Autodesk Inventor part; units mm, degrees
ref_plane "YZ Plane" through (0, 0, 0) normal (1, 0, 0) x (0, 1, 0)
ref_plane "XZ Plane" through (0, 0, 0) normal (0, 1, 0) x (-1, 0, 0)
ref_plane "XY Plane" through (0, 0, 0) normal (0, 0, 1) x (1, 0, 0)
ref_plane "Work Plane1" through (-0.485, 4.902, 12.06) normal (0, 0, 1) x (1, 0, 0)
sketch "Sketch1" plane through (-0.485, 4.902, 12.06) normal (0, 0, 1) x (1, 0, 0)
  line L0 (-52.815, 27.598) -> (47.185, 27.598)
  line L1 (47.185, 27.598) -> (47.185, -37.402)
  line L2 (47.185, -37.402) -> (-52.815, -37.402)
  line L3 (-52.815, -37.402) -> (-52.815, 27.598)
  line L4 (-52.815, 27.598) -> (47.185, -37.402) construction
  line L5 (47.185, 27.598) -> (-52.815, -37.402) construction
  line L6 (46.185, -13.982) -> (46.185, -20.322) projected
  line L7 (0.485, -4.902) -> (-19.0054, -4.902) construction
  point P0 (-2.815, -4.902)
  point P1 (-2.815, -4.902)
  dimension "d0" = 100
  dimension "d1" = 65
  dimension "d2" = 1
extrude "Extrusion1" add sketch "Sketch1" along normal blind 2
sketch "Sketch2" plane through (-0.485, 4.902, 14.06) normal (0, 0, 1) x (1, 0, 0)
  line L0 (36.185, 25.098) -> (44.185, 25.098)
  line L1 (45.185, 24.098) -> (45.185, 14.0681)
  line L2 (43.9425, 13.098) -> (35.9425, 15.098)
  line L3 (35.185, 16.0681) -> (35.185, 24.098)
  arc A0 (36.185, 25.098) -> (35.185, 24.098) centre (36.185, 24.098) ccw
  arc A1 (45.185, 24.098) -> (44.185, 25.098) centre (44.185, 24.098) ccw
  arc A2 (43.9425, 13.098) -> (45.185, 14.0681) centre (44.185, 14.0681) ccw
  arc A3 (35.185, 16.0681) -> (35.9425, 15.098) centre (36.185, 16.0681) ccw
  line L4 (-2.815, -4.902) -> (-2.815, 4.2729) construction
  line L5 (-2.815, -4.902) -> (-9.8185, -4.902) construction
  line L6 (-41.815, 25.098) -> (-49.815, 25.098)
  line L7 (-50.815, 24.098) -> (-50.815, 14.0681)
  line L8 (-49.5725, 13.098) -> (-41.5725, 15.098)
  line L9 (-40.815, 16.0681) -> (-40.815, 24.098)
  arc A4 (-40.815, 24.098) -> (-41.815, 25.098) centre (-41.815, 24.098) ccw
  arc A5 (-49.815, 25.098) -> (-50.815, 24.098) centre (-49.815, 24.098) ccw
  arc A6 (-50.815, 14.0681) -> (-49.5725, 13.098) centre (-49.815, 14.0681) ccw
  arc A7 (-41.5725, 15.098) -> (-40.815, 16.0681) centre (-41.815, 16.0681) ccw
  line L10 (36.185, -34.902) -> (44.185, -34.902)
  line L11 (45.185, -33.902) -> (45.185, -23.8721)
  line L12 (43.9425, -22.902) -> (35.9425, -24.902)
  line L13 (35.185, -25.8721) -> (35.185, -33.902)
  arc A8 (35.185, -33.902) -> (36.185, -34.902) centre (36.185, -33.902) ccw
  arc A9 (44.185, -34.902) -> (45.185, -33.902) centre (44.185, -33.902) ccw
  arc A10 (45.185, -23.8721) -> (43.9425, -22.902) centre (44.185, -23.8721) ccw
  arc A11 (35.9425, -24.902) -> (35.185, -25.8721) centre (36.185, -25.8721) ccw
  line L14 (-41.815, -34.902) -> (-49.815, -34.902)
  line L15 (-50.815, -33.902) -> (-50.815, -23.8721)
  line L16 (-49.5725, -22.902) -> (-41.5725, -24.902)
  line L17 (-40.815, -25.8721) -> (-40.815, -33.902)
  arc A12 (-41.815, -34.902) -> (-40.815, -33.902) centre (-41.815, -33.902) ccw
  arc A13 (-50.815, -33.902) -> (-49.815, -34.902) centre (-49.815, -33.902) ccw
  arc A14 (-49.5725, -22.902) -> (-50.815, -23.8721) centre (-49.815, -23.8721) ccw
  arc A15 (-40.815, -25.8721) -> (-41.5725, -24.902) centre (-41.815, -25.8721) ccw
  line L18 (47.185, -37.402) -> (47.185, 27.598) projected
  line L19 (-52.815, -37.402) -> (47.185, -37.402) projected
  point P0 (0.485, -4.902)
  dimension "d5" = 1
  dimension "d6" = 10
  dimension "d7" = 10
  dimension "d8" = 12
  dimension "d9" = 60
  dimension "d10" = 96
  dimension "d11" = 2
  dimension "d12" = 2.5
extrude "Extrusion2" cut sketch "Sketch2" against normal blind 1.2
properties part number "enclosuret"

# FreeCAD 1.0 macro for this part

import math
import FreeCAD as App
import Part
import Sketcher
from FreeCAD import Vector


def add_polygon(sketch, points):
    """Adds a closed chain of lines whose ends are joined by coincident constraints."""
    first, n = sketch.GeometryCount, len(points)
    for a, b in zip(points, points[1:] + points[:1]):
        sketch.addGeometry(Part.LineSegment(App.Vector(*a, 0), App.Vector(*b, 0)), False)
    for i in range(n):
        sketch.addConstraint(Sketcher.Constraint("Coincident", first + i, 2, first + (i + 1) % n, 1))

doc = App.newDocument("Part")
body = doc.addObject("PartDesign::Body", "Body")

# Sketch on XY plane
sketch1 = body.newObject("Sketcher::SketchObject", "Sketch")
sketch1.AttachmentSupport = (doc.getObject("XY_Plane"), [""])
sketch1.MapMode = "FlatFace"
sketch1.AttachmentOffset = App.Placement(Vector(0, 0, 12.06), App.Rotation())
add_polygon(sketch1, [(47, 32), (-53, 32), (-53, -32), (47, -32)])  # lines 0-3
sketch1.addConstraint(Sketcher.Constraint("Horizontal", 0))
sketch1.addConstraint(Sketcher.Constraint("Vertical", 1))
sketch1.addConstraint(Sketcher.Constraint("Horizontal", 2))
sketch1.addConstraint(Sketcher.Constraint("Vertical", 3))
sketch1.addConstraint(Sketcher.Constraint("DistanceX", 0, 2, 0, 1, 100.0))
sketch1.addConstraint(Sketcher.Constraint("DistanceY", 1, 2, 1, 1, 65.0))
sketch1.addConstraint(Sketcher.Constraint("DistanceX", 0, 2, -1, 1, 53.3))
sketch1.addConstraint(Sketcher.Constraint("DistanceY", -1, 1, 0, 2, 32.5))
pad1 = body.newObject("PartDesign::Pad", "Pad")
pad1.Profile = sketch1
pad1.Length = 2

# Sketch on XY plane
sketch2 = body.newObject("Sketcher::SketchObject", "Sketch001")
sketch2.AttachmentSupport = (doc.getObject("XY_Plane"), [""])
sketch2.MapMode = "FlatFace"
sketch2.AttachmentOffset = App.Placement(Vector(0, 0, 14.06), App.Rotation())
sketch2.addGeometry(Part.LineSegment(Vector(43.7, 30, 0), Vector(35.7, 30, 0)), False)
sketch2.addGeometry(Part.ArcOfCircle(Part.Circle(Vector(35.7, 29, 0), Vector(0, 0, 1), 1), math.radians(90), math.radians(180)), False)
sketch2.addGeometry(Part.LineSegment(Vector(34.7, 29, 0), Vector(34.7, 21, 0)), False)
sketch2.addGeometry(Part.ArcOfCircle(Part.Circle(Vector(35.7, 21, 0), Vector(0, 0, 1), 1), math.radians(180), math.radians(256)), False)
sketch2.addGeometry(Part.LineSegment(Vector(35.5, 20, 0), Vector(43.5, 18, 0)), False)
sketch2.addGeometry(Part.ArcOfCircle(Part.Circle(Vector(43.7, 19, 0), Vector(0, 0, 1), 1), math.radians(-104), math.radians(0)), False)
sketch2.addGeometry(Part.LineSegment(Vector(44.7, 19, 0), Vector(44.7, 29, 0)), False)
sketch2.addGeometry(Part.ArcOfCircle(Part.Circle(Vector(43.7, 29, 0), Vector(0, 0, 1), 1), math.radians(0), math.radians(90)), False)
sketch2.addGeometry(Part.ArcOfCircle(Part.Circle(Vector(-42.3, 29, 0), Vector(0, 0, 1), 1), math.radians(0), math.radians(90)), False)
sketch2.addGeometry(Part.LineSegment(Vector(-42.3, 30, 0), Vector(-50.3, 30, 0)), False)
sketch2.addGeometry(Part.ArcOfCircle(Part.Circle(Vector(-50.3, 29, 0), Vector(0, 0, 1), 1), math.radians(90), math.radians(180)), False)
sketch2.addGeometry(Part.LineSegment(Vector(-51.3, 29, 0), Vector(-51.3, 19, 0)), False)
sketch2.addGeometry(Part.ArcOfCircle(Part.Circle(Vector(-50.3, 19, 0), Vector(0, 0, 1), 1), math.radians(180), math.radians(284)), False)
sketch2.addGeometry(Part.LineSegment(Vector(-50.1, 18, 0), Vector(-42.1, 20, 0)), False)
sketch2.addGeometry(Part.ArcOfCircle(Part.Circle(Vector(-42.3, 21, 0), Vector(0, 0, 1), 1), math.radians(-76), math.radians(0)), False)
sketch2.addGeometry(Part.LineSegment(Vector(-41.3, 21, 0), Vector(-41.3, 29, 0)), False)
sketch2.addGeometry(Part.ArcOfCircle(Part.Circle(Vector(35.7, -29, 0), Vector(0, 0, 1), 1), math.radians(180), math.radians(270)), False)
sketch2.addGeometry(Part.LineSegment(Vector(35.7, -30, 0), Vector(43.7, -30, 0)), False)
sketch2.addGeometry(Part.ArcOfCircle(Part.Circle(Vector(43.7, -29, 0), Vector(0, 0, 1), 1), math.radians(-90), math.radians(0)), False)
sketch2.addGeometry(Part.LineSegment(Vector(44.7, -29, 0), Vector(44.7, -19, 0)), False)
sketch2.addGeometry(Part.ArcOfCircle(Part.Circle(Vector(43.7, -19, 0), Vector(0, 0, 1), 1), math.radians(0), math.radians(104)), False)
sketch2.addGeometry(Part.LineSegment(Vector(43.5, -18, 0), Vector(35.5, -20, 0)), False)
sketch2.addGeometry(Part.ArcOfCircle(Part.Circle(Vector(35.7, -21, 0), Vector(0, 0, 1), 1), math.radians(104), math.radians(180)), False)
sketch2.addGeometry(Part.LineSegment(Vector(34.7, -21, 0), Vector(34.7, -29, 0)), False)
sketch2.addGeometry(Part.LineSegment(Vector(-50.3, -30, 0), Vector(-42.3, -30, 0)), False)
sketch2.addGeometry(Part.ArcOfCircle(Part.Circle(Vector(-42.3, -29, 0), Vector(0, 0, 1), 1), math.radians(-90), math.radians(0)), False)
sketch2.addGeometry(Part.LineSegment(Vector(-41.3, -29, 0), Vector(-41.3, -21, 0)), False)
sketch2.addGeometry(Part.ArcOfCircle(Part.Circle(Vector(-42.3, -21, 0), Vector(0, 0, 1), 1), math.radians(0), math.radians(76)), False)
sketch2.addGeometry(Part.LineSegment(Vector(-42.1, -20, 0), Vector(-50.1, -18, 0)), False)
sketch2.addGeometry(Part.ArcOfCircle(Part.Circle(Vector(-50.3, -19, 0), Vector(0, 0, 1), 1), math.radians(76), math.radians(180)), False)
sketch2.addGeometry(Part.LineSegment(Vector(-51.3, -19, 0), Vector(-51.3, -29, 0)), False)
sketch2.addGeometry(Part.ArcOfCircle(Part.Circle(Vector(-50.3, -29, 0), Vector(0, 0, 1), 1), math.radians(180), math.radians(270)), False)
sketch2.addConstraint(Sketcher.Constraint("Tangent", 0, 2, 1, 1))
sketch2.addConstraint(Sketcher.Constraint("Tangent", 1, 2, 2, 1))
sketch2.addConstraint(Sketcher.Constraint("Tangent", 2, 2, 3, 1))
sketch2.addConstraint(Sketcher.Constraint("Tangent", 3, 2, 4, 1))
sketch2.addConstraint(Sketcher.Constraint("Tangent", 4, 2, 5, 1))
sketch2.addConstraint(Sketcher.Constraint("Tangent", 5, 2, 6, 1))
sketch2.addConstraint(Sketcher.Constraint("Tangent", 6, 2, 7, 1))
sketch2.addConstraint(Sketcher.Constraint("Tangent", 7, 2, 0, 1))
sketch2.addConstraint(Sketcher.Constraint("Tangent", 8, 2, 9, 1))
sketch2.addConstraint(Sketcher.Constraint("Tangent", 9, 2, 10, 1))
sketch2.addConstraint(Sketcher.Constraint("Tangent", 10, 2, 11, 1))
sketch2.addConstraint(Sketcher.Constraint("Tangent", 11, 2, 12, 1))
sketch2.addConstraint(Sketcher.Constraint("Tangent", 12, 2, 13, 1))
sketch2.addConstraint(Sketcher.Constraint("Tangent", 13, 2, 14, 1))
sketch2.addConstraint(Sketcher.Constraint("Tangent", 14, 2, 15, 1))
sketch2.addConstraint(Sketcher.Constraint("Tangent", 15, 2, 8, 1))
sketch2.addConstraint(Sketcher.Constraint("Tangent", 16, 2, 17, 1))
sketch2.addConstraint(Sketcher.Constraint("Tangent", 17, 2, 18, 1))
sketch2.addConstraint(Sketcher.Constraint("Tangent", 18, 2, 19, 1))
sketch2.addConstraint(Sketcher.Constraint("Tangent", 19, 2, 20, 1))
sketch2.addConstraint(Sketcher.Constraint("Tangent", 20, 2, 21, 1))
sketch2.addConstraint(Sketcher.Constraint("Tangent", 21, 2, 22, 1))
sketch2.addConstraint(Sketcher.Constraint("Tangent", 22, 2, 23, 1))
sketch2.addConstraint(Sketcher.Constraint("Tangent", 23, 2, 16, 1))
sketch2.addConstraint(Sketcher.Constraint("Tangent", 24, 2, 25, 1))
sketch2.addConstraint(Sketcher.Constraint("Tangent", 25, 2, 26, 1))
sketch2.addConstraint(Sketcher.Constraint("Tangent", 26, 2, 27, 1))
sketch2.addConstraint(Sketcher.Constraint("Tangent", 27, 2, 28, 1))
sketch2.addConstraint(Sketcher.Constraint("Tangent", 28, 2, 29, 1))
sketch2.addConstraint(Sketcher.Constraint("Tangent", 29, 2, 30, 1))
sketch2.addConstraint(Sketcher.Constraint("Tangent", 30, 2, 31, 1))
sketch2.addConstraint(Sketcher.Constraint("Tangent", 31, 2, 24, 1))
sketch2.addConstraint(Sketcher.Constraint("Horizontal", 0))
sketch2.addConstraint(Sketcher.Constraint("Vertical", 2))
sketch2.addConstraint(Sketcher.Constraint("Vertical", 6))
sketch2.addConstraint(Sketcher.Constraint("Horizontal", 9))
sketch2.addConstraint(Sketcher.Constraint("Vertical", 11))
sketch2.addConstraint(Sketcher.Constraint("Vertical", 15))
sketch2.addConstraint(Sketcher.Constraint("Horizontal", 17))
sketch2.addConstraint(Sketcher.Constraint("Vertical", 19))
sketch2.addConstraint(Sketcher.Constraint("Vertical", 23))
sketch2.addConstraint(Sketcher.Constraint("Horizontal", 24))
sketch2.addConstraint(Sketcher.Constraint("Vertical", 26))
sketch2.addConstraint(Sketcher.Constraint("Vertical", 30))
sketch2.addConstraint(Sketcher.Constraint("Equal", 1, 3))
sketch2.addConstraint(Sketcher.Constraint("Equal", 3, 5))
sketch2.addConstraint(Sketcher.Constraint("Equal", 5, 7))
sketch2.addConstraint(Sketcher.Constraint("Equal", 7, 8))
sketch2.addConstraint(Sketcher.Constraint("Equal", 8, 10))
sketch2.addConstraint(Sketcher.Constraint("Equal", 10, 12))
sketch2.addConstraint(Sketcher.Constraint("Equal", 12, 14))
sketch2.addConstraint(Sketcher.Constraint("Equal", 14, 16))
sketch2.addConstraint(Sketcher.Constraint("Equal", 16, 18))
sketch2.addConstraint(Sketcher.Constraint("Equal", 18, 20))
sketch2.addConstraint(Sketcher.Constraint("Equal", 20, 22))
sketch2.addConstraint(Sketcher.Constraint("Equal", 22, 25))
sketch2.addConstraint(Sketcher.Constraint("Equal", 25, 27))
sketch2.addConstraint(Sketcher.Constraint("Equal", 27, 29))
sketch2.addConstraint(Sketcher.Constraint("Equal", 29, 31))
sketch2.addConstraint(Sketcher.Constraint("Symmetric", 1, 3, 16, 3, -1))
sketch2.addConstraint(Sketcher.Constraint("Symmetric", 5, 3, 20, 3, -1))
sketch2.addConstraint(Sketcher.Constraint("Symmetric", 8, 3, 25, 3, -1))
sketch2.addConstraint(Sketcher.Constraint("Symmetric", 12, 3, 29, 3, -1))
sketch2.addConstraint(Sketcher.Constraint("Parallel", 13, 21))
sketch2.addConstraint(Sketcher.Constraint("Parallel", 4, 28))
sketch2.addConstraint(Sketcher.Constraint("Horizontal", 7, 3, 8, 3))
sketch2.addConstraint(Sketcher.Constraint("Horizontal", 5, 3, 12, 3))
sketch2.addConstraint(Sketcher.Constraint("Horizontal", 3, 3, 14, 3))
sketch2.addConstraint(Sketcher.Constraint("Horizontal", 22, 3, 27, 3))
sketch2.addConstraint(Sketcher.Constraint("Radius", 1, 1.0))
sketch2.addConstraint(Sketcher.Constraint("DistanceY", 5, 3, 3, 3, 2.0))
sketch2.addConstraint(Sketcher.Constraint("DistanceX", 1, 2, 6, 2, 10.0))
sketch2.addConstraint(Sketcher.Constraint("DistanceY", -1, 1, 1, 3, 29.0))
sketch2.addConstraint(Sketcher.Constraint("DistanceY", -1, 1, 3, 2, 20.0))
sketch2.addConstraint(Sketcher.Constraint("DistanceX", 8, 3, 1, 3, 78.0))
sketch2.addConstraint(Sketcher.Constraint("DistanceX", -1, 1, 1, 3, 35.7))
pocket1 = body.newObject("PartDesign::Pocket", "Pocket")
pocket1.Profile = sketch2
pocket1.Length = 1.2

doc.recompute()
